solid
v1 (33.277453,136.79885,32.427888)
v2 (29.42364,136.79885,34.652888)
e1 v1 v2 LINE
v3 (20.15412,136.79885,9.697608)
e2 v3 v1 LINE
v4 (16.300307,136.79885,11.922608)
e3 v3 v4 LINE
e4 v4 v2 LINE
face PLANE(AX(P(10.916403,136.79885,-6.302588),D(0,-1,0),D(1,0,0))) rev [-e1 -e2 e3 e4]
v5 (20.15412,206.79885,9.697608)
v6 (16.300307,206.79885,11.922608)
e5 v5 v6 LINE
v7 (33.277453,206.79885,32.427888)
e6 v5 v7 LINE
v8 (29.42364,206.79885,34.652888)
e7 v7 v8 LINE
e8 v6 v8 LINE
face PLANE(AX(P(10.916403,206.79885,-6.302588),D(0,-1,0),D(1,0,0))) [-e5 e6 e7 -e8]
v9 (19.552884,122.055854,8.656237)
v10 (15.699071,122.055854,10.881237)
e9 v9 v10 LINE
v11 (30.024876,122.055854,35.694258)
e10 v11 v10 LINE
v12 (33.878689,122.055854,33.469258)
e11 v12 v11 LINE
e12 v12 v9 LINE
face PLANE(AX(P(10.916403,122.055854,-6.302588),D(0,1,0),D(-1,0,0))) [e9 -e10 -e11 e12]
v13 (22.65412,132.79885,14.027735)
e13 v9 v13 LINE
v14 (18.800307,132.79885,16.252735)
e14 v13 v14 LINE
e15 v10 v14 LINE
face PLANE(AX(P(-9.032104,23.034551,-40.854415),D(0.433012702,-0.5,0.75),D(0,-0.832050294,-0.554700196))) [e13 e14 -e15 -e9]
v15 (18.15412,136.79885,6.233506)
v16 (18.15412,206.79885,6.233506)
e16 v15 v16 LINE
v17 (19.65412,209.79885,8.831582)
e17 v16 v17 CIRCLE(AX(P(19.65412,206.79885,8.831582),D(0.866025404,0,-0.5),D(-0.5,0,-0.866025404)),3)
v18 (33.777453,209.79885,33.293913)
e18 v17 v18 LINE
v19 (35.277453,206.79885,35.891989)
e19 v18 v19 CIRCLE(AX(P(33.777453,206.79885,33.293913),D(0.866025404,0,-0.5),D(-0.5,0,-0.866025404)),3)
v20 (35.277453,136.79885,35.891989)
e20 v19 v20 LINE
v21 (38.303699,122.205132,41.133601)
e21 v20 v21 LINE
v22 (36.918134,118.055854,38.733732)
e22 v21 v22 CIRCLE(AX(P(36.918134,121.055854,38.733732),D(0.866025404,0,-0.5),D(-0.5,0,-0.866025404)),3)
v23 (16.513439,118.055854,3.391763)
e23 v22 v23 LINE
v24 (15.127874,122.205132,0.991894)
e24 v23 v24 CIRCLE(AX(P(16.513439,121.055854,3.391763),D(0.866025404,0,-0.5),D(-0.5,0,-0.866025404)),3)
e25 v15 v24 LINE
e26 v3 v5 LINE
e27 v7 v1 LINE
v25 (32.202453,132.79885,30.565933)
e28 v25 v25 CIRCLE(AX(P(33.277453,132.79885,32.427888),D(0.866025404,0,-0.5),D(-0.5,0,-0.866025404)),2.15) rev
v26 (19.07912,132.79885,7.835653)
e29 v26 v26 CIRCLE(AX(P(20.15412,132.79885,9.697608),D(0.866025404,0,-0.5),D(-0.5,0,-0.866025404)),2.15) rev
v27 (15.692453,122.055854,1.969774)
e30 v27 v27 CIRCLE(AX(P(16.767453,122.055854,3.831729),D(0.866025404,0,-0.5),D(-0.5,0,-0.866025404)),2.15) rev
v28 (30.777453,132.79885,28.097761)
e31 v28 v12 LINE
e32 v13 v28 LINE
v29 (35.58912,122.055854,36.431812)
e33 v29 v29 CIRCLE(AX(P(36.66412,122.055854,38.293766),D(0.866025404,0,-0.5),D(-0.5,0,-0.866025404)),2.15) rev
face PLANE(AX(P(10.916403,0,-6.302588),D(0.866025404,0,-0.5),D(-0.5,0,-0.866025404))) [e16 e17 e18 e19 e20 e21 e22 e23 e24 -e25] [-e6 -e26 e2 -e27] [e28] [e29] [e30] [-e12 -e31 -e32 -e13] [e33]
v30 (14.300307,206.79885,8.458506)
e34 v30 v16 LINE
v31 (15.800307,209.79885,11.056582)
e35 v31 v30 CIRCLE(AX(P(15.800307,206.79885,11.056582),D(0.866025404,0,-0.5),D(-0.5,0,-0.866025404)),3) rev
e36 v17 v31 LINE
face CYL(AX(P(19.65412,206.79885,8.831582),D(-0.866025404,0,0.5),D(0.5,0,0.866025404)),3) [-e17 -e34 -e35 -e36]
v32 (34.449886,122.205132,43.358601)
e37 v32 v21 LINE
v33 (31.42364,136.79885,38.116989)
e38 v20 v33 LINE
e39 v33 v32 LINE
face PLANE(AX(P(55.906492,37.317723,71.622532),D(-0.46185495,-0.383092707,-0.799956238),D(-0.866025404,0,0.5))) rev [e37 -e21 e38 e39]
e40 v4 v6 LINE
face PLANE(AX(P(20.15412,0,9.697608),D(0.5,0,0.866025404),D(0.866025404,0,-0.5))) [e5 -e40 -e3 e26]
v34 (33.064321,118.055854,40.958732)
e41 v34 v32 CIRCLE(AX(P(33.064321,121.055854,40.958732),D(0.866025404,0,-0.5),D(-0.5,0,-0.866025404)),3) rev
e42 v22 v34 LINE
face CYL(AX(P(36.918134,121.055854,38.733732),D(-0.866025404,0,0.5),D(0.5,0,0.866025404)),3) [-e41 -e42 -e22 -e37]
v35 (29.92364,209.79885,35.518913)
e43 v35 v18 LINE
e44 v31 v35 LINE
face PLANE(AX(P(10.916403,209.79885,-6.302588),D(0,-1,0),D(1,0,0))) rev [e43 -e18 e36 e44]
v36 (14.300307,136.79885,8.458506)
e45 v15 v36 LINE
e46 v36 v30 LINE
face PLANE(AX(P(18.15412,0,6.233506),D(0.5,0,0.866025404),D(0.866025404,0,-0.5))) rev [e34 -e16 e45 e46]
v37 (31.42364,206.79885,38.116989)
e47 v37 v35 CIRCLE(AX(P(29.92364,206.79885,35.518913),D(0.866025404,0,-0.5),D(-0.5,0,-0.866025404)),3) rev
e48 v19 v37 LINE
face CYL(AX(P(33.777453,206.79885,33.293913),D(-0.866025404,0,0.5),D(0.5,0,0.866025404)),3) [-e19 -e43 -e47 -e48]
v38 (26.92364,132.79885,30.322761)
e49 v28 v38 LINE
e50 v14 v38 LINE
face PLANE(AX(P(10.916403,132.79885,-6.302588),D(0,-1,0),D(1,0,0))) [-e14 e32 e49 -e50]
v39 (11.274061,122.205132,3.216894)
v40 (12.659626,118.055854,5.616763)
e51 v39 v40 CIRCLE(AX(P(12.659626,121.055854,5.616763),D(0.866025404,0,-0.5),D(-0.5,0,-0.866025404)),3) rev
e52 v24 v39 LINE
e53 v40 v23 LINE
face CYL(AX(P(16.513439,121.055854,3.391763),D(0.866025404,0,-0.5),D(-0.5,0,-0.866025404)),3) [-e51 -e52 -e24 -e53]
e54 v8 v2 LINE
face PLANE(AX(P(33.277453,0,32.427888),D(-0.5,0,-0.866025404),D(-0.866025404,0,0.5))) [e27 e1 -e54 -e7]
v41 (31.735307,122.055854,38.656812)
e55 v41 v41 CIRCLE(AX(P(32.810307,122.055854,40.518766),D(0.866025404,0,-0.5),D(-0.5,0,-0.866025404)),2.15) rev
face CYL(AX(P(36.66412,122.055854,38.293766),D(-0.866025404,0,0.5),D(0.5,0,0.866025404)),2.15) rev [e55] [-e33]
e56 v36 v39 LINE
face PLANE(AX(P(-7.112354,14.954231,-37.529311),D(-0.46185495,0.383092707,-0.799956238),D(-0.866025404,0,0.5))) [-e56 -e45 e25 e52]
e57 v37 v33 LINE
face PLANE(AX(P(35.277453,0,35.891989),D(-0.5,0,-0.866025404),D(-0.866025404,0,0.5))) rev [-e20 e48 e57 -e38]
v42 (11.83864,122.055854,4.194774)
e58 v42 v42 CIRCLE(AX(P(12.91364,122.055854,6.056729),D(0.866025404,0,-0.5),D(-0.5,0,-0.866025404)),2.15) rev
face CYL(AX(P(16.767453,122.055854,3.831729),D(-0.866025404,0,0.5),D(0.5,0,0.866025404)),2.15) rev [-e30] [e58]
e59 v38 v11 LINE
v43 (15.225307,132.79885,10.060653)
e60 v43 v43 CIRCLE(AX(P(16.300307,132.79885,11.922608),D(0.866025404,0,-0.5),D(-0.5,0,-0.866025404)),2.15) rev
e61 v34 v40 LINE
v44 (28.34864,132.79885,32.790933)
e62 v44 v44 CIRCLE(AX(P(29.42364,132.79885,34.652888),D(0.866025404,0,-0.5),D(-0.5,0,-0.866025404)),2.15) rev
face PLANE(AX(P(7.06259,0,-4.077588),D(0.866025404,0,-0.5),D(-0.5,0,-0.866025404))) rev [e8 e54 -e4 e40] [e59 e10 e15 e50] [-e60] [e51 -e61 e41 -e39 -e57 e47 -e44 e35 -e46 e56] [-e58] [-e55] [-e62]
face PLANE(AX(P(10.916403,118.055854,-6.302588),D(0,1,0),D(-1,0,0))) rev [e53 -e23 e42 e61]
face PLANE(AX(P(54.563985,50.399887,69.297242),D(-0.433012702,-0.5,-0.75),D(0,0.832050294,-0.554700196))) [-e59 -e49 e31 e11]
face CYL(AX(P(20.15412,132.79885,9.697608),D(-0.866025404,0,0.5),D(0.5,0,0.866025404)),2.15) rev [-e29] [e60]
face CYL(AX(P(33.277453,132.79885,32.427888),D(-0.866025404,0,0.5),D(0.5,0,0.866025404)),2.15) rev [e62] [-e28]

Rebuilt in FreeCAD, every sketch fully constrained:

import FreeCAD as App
import Part
import Sketcher
from FreeCAD import Vector
Q = App.Units.Quantity


def edges_at(feature, points):
    """Names of the edges that pass closest to the given points."""
    edges = feature.Shape.Edges
    near = lambda p: min(range(len(edges)), key=lambda i: edges[i].distToShape(Part.Vertex(*p))[0])
    return sorted({f"Edge{near(p) + 1}" for p in points})


def add_polygon(sketch, points):
    """Adds a closed chain of lines whose ends are joined by coincident constraints."""
    first, n = sketch.GeometryCount, len(points)
    for a, b in zip(points, points[1:] + points[:1]):
        sketch.addGeometry(Part.LineSegment(App.Vector(*a, 0), App.Vector(*b, 0)), False)
    for i in range(n):
        sketch.addConstraint(Sketcher.Constraint("Coincident", first + i, 2, first + (i + 1) % n, 1))

doc = App.newDocument("Part")
body = doc.addObject("PartDesign::Body", "Body")

# Sketch on an angled plane
sketch1 = doc.addObject("Sketcher::SketchObject", "Sketch")
body.addObject(sketch1)
sketch1.Placement = App.Placement(Vector(7.06259, 0, -4.077588), App.Rotation(Vector(0.5, 0, 0.866025404), Vector(0, 1, 0), Vector(-0.866025404, 0, 0.5), "ZXY"))
add_polygon(sketch1, [(14.5, 209.8), (14.5, 136.8), (6.7, 118.1), (56.5, 118.1), (48.7, 136.8), (48.7, 209.8)])  # lines 0-5
sketch1.addGeometry(Part.Circle(Vector(11.7, 122.1, 0), Vector(0, 0, 1), 2.1), False)  # 6
sketch1.addGeometry(Part.Circle(Vector(18.5, 132.8, 0), Vector(0, 0, 1), 2.1), False)  # 7
add_polygon(sketch1, [(39.7, 132.8), (45.9, 122.1), (17.3, 122.1), (23.5, 132.8)])  # lines 8-11
sketch1.addGeometry(Part.Circle(Vector(51.5, 122.1, 0), Vector(0, 0, 1), 2.1), False)  # 12
sketch1.addGeometry(Part.Circle(Vector(44.7, 132.8, 0), Vector(0, 0, 1), 2.1), False)  # 13
add_polygon(sketch1, [(44.7, 136.8), (18.5, 136.8), (18.5, 206.8), (44.7, 206.8)])  # lines 14-17
sketch1.addConstraint([
    Sketcher.Constraint("Vertical", 0),
    Sketcher.Constraint("Horizontal", 2),
    Sketcher.Constraint("Vertical", 4),
    Sketcher.Constraint("Horizontal", 5),
    Sketcher.Constraint("Horizontal", 9),
    Sketcher.Constraint("Horizontal", 11),
    Sketcher.Constraint("Horizontal", 14),
    Sketcher.Constraint("Vertical", 15),
    Sketcher.Constraint("Horizontal", 16),
    Sketcher.Constraint("Vertical", 17),
    Sketcher.Constraint("Equal", 6, 7),
    Sketcher.Constraint("Equal", 7, 12),
    Sketcher.Constraint("Equal", 12, 13),
    Sketcher.Constraint("Horizontal", 6, 3, 12, 3),
    Sketcher.Constraint("Horizontal", 7, 3, 13, 3),
    Sketcher.Constraint("Horizontal", 0, 2, 3, 2),
    Sketcher.Constraint("Horizontal", 12, 3, 8, 2),
    Sketcher.Constraint("Horizontal", 13, 3, 10, 2),
    Sketcher.Constraint("Horizontal", 3, 2, 14, 2),
    Sketcher.Constraint("Vertical", 7, 3, 14, 2),
    Sketcher.Constraint("Vertical", 13, 3, 16, 2),
    Sketcher.Constraint("Equal", 1, 3),
    Sketcher.Constraint("Equal", 8, 10),
    Sketcher.Constraint("Diameter", 6, 4.3),
    Sketcher.Constraint("DistanceY", 0, 2, 0, 1, 73.0),
    Sketcher.Constraint("DistanceY", 15, 1, 15, 2, 70.0),
    Sketcher.Constraint("Angle", 8, Q("-60 deg")),
    Sketcher.Constraint("DistanceX", 0, 2, 7, 3, 4.0),
    Sketcher.Constraint("DistanceY", 7, 3, 0, 2, 4.0),
    Sketcher.Constraint("DistanceX", 1, 2, 6, 3, 5.0),
    Sketcher.Constraint("DistanceY", 1, 2, 6, 3, 4.0),
    Sketcher.Constraint("DistanceX", 12, 3, 2, 2, 5.0),
    Sketcher.Constraint("DistanceX", 13, 3, 3, 2, 4.0),
    Sketcher.Constraint("DistanceX", 7, 3, 10, 2, 5.0),
    Sketcher.Constraint("DistanceX", 11, 2, 13, 3, 5.0),
    Sketcher.Constraint("DistanceX", 7, 3, 12, 3, 33.02),
    Sketcher.Constraint("DistanceX", 9, 2, 9, 1, 28.65161),
    Sketcher.Constraint("DistanceX", -1, 1, 6, 3, 11.702101),
    Sketcher.Constraint("DistanceX", 2, 1, 2, 2, 49.793333),
    Sketcher.Constraint("DistanceY", -1, 1, 7, 3, 132.79885),
])
pad1 = doc.addObject("PartDesign::Pad", "Pad")
body.addObject(pad1)
pad1.Profile = sketch1
pad1.Length = 4.45
pad1.Reversed = True
doc.recompute()

fillet = doc.addObject("PartDesign::Fillet", "Fillet")
body.addObject(fillet)
fillet.Base = (pad1, edges_at(pad1, [
    (12.341, 118.056, 0.614),
    (37.237, 118.056, 43.736),
    (33.351, 209.799, 37.004),
    (16.227, 209.799, 7.346),
]))
fillet.Radius = 3

doc.recompute()
